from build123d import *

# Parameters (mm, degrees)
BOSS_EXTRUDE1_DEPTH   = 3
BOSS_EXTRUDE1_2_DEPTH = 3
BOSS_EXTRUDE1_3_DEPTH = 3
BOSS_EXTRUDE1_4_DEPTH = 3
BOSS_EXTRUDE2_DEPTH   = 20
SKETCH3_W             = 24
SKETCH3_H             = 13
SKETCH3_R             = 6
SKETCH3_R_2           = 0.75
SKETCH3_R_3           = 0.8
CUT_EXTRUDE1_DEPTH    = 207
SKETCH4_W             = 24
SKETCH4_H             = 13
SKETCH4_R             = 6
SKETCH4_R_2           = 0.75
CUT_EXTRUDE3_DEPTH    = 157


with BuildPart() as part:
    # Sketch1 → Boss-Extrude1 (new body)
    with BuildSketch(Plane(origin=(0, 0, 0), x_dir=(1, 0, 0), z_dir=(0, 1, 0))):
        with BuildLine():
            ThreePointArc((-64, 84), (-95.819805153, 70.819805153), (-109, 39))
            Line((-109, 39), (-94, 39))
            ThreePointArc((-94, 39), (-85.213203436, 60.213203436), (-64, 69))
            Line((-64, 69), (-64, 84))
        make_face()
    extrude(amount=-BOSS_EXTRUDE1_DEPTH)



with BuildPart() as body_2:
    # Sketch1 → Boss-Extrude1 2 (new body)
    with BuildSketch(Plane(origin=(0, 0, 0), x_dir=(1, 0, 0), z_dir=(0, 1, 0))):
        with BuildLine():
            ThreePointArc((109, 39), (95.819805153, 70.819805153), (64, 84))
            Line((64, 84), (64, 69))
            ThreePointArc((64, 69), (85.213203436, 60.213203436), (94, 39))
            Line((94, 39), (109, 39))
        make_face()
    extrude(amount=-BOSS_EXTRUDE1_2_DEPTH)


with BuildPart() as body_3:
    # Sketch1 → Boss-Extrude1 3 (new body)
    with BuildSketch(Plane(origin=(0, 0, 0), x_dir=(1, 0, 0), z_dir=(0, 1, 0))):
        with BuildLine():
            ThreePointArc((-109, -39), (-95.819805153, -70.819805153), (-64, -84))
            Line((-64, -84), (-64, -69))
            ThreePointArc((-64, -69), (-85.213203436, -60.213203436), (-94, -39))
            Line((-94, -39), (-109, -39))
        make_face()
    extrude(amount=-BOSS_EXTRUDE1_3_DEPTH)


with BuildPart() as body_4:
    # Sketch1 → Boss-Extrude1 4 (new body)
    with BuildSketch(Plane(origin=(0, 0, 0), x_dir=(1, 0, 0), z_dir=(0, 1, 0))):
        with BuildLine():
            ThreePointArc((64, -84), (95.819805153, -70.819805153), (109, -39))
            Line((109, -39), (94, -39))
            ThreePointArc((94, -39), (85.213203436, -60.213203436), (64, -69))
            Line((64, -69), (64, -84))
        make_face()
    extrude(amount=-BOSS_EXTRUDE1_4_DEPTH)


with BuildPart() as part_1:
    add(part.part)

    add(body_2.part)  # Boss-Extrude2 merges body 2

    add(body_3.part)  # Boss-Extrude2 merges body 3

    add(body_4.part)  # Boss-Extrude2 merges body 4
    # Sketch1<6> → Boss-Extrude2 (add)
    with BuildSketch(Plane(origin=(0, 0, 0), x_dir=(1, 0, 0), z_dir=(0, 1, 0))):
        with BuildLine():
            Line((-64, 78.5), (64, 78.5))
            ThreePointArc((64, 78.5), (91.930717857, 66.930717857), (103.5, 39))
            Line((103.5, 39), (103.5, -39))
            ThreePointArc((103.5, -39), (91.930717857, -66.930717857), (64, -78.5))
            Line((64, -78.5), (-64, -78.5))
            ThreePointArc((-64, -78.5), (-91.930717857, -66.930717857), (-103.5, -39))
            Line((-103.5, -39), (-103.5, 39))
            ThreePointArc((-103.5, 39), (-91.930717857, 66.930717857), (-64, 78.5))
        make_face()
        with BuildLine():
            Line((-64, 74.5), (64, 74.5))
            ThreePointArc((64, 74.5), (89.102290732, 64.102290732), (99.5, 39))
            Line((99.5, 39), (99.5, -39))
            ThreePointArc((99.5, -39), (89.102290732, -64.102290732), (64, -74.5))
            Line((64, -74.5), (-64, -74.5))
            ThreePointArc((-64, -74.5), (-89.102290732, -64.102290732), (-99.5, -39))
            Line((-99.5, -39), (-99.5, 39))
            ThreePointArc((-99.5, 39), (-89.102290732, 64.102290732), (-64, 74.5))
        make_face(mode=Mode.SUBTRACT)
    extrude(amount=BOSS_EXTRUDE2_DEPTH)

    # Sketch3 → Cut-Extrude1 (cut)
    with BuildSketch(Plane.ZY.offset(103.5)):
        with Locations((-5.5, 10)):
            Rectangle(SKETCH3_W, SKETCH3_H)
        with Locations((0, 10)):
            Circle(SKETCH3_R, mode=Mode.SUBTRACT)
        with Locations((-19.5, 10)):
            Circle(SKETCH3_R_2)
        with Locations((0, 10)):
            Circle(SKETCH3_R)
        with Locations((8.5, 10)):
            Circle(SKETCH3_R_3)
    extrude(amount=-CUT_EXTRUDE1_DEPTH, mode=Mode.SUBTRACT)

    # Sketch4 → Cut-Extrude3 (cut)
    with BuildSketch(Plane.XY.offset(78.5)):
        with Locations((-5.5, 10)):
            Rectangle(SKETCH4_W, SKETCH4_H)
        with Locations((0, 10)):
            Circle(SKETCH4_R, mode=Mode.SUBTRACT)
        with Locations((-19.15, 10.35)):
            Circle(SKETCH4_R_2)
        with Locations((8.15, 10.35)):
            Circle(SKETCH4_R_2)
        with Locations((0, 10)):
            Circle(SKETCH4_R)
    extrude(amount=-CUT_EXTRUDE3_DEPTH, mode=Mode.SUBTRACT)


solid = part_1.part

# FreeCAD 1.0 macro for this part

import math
import FreeCAD as App
import Part
import Sketcher
from FreeCAD import Vector
Q = App.Units.Quantity


def add_polygon(sketch, points):
    """Adds a closed chain of lines whose ends are joined by coincident constraints."""
    first, n = sketch.GeometryCount, len(points)
    for a, b in zip(points, points[1:] + points[:1]):
        sketch.addGeometry(Part.LineSegment(App.Vector(*a, 0), App.Vector(*b, 0)), False)
    for i in range(n):
        sketch.addConstraint(Sketcher.Constraint("Coincident", first + i, 2, first + (i + 1) % n, 1))

doc = App.newDocument("Part")
body = doc.addObject("PartDesign::Body", "Body")

# Sketch on XZ plane
sketch1 = body.newObject("Sketcher::SketchObject", "Sketch")
sketch1.AttachmentSupport = (doc.getObject("XZ_Plane"), [""])
sketch1.MapMode = "FlatFace"
sketch1.addGeometry(Part.ArcOfCircle(Part.Circle(Vector(-64, -39, 0), Vector(0, 0, 1), 45), math.radians(-180), math.radians(-90)), False)
sketch1.addGeometry(Part.LineSegment(Vector(-109, -39, 0), Vector(-94, -39, 0)), False)
sketch1.addGeometry(Part.ArcOfCircle(Part.Circle(Vector(-64, -39, 0), Vector(0, 0, 1), 30), math.radians(180), math.radians(270)), False)
sketch1.addGeometry(Part.LineSegment(Vector(-64, -69, 0), Vector(-64, -84, 0)), False)
sketch1.addConstraint(Sketcher.Constraint("Coincident", 0, 1, 1, 1))
sketch1.addConstraint(Sketcher.Constraint("Coincident", 1, 2, 2, 1))
sketch1.addConstraint(Sketcher.Constraint("Coincident", 2, 2, 3, 1))
sketch1.addConstraint(Sketcher.Constraint("Coincident", 3, 2, 0, 2))
sketch1.addConstraint(Sketcher.Constraint("Horizontal", 1))
sketch1.addConstraint(Sketcher.Constraint("Vertical", 3))
sketch1.addConstraint(Sketcher.Constraint("Coincident", 2, 3, 0, 3))
sketch1.addConstraint(Sketcher.Constraint("Horizontal", 2, 3, 0, 1))
sketch1.addConstraint(Sketcher.Constraint("Vertical", 0, 3, 2, 2))
sketch1.addConstraint(Sketcher.Constraint("Radius", 0, Q("45 mm")))
sketch1.addConstraint(Sketcher.Constraint("Radius", 2, Q("30 mm")))
sketch1.addConstraint(Sketcher.Constraint("DistanceX", 0, 3, -1, 1, Q("64 mm")))
sketch1.addConstraint(Sketcher.Constraint("DistanceY", 0, 3, -1, 1, Q("39 mm")))
pad1 = body.newObject("PartDesign::Pad", "Pad")
pad1.Profile = sketch1
pad1.Length = 3
body2 = doc.addObject("PartDesign::Body", "Body001")

# Sketch on XZ plane
sketch2 = body2.newObject("Sketcher::SketchObject", "Sketch001")
sketch2.AttachmentSupport = (doc.getObject("XZ_Plane001"), [""])
sketch2.MapMode = "FlatFace"
sketch2.addGeometry(Part.ArcOfCircle(Part.Circle(Vector(64, -39, 0), Vector(0, 0, 1), 45), math.radians(-90), math.radians(0)), False)
sketch2.addGeometry(Part.LineSegment(Vector(64, -84, 0), Vector(64, -69, 0)), False)
sketch2.addGeometry(Part.ArcOfCircle(Part.Circle(Vector(64, -39, 0), Vector(0, 0, 1), 30), math.radians(-90), math.radians(0)), False)
sketch2.addGeometry(Part.LineSegment(Vector(94, -39, 0), Vector(109, -39, 0)), False)
sketch2.addConstraint(Sketcher.Constraint("Coincident", 0, 1, 1, 1))
sketch2.addConstraint(Sketcher.Constraint("Coincident", 1, 2, 2, 1))
sketch2.addConstraint(Sketcher.Constraint("Coincident", 2, 2, 3, 1))
sketch2.addConstraint(Sketcher.Constraint("Coincident", 3, 2, 0, 2))
sketch2.addConstraint(Sketcher.Constraint("Vertical", 1))
sketch2.addConstraint(Sketcher.Constraint("Horizontal", 3))
sketch2.addConstraint(Sketcher.Constraint("Coincident", 2, 3, 0, 3))
sketch2.addConstraint(Sketcher.Constraint("Horizontal", 0, 3, 2, 2))
sketch2.addConstraint(Sketcher.Constraint("Vertical", 2, 3, 0, 1))
sketch2.addConstraint(Sketcher.Constraint("Radius", 0, Q("45 mm")))
sketch2.addConstraint(Sketcher.Constraint("Radius", 2, Q("30 mm")))
sketch2.addConstraint(Sketcher.Constraint("DistanceX", -1, 1, 0, 3, Q("64 mm")))
sketch2.addConstraint(Sketcher.Constraint("DistanceY", 0, 3, -1, 1, Q("39 mm")))
pad2 = body2.newObject("PartDesign::Pad", "Pad001")
pad2.Profile = sketch2
pad2.Length = 3
body3 = doc.addObject("PartDesign::Body", "Body002")

# Sketch on XZ plane
sketch3 = body3.newObject("Sketcher::SketchObject", "Sketch002")
sketch3.AttachmentSupport = (doc.getObject("XZ_Plane002"), [""])
sketch3.MapMode = "FlatFace"
sketch3.addGeometry(Part.ArcOfCircle(Part.Circle(Vector(-64, 39, 0), Vector(0, 0, 1), 45), math.radians(90), math.radians(180)), False)
sketch3.addGeometry(Part.LineSegment(Vector(-64, 84, 0), Vector(-64, 69, 0)), False)
sketch3.addGeometry(Part.ArcOfCircle(Part.Circle(Vector(-64, 39, 0), Vector(0, 0, 1), 30), math.radians(90), math.radians(180)), False)
sketch3.addGeometry(Part.LineSegment(Vector(-94, 39, 0), Vector(-109, 39, 0)), False)
sketch3.addConstraint(Sketcher.Constraint("Coincident", 0, 1, 1, 1))
sketch3.addConstraint(Sketcher.Constraint("Coincident", 1, 2, 2, 1))
sketch3.addConstraint(Sketcher.Constraint("Coincident", 2, 2, 3, 1))
sketch3.addConstraint(Sketcher.Constraint("Coincident", 3, 2, 0, 2))
sketch3.addConstraint(Sketcher.Constraint("Vertical", 1))
sketch3.addConstraint(Sketcher.Constraint("Horizontal", 3))
sketch3.addConstraint(Sketcher.Constraint("Coincident", 2, 3, 0, 3))
sketch3.addConstraint(Sketcher.Constraint("Horizontal", 0, 3, 2, 2))
sketch3.addConstraint(Sketcher.Constraint("Vertical", 2, 3, 0, 1))
sketch3.addConstraint(Sketcher.Constraint("Radius", 0, Q("45 mm")))
sketch3.addConstraint(Sketcher.Constraint("Radius", 2, Q("30 mm")))
sketch3.addConstraint(Sketcher.Constraint("DistanceX", 0, 3, -1, 1, Q("64 mm")))
sketch3.addConstraint(Sketcher.Constraint("DistanceY", -1, 1, 0, 3, Q("39 mm")))
pad3 = body3.newObject("PartDesign::Pad", "Pad002")
pad3.Profile = sketch3
pad3.Length = 3
body4 = doc.addObject("PartDesign::Body", "Body003")

# Sketch on XZ plane
sketch4 = body4.newObject("Sketcher::SketchObject", "Sketch003")
sketch4.AttachmentSupport = (doc.getObject("XZ_Plane003"), [""])
sketch4.MapMode = "FlatFace"
sketch4.addGeometry(Part.ArcOfCircle(Part.Circle(Vector(64, 39, 0), Vector(0, 0, 1), 45), math.radians(0), math.radians(90)), False)
sketch4.addGeometry(Part.LineSegment(Vector(109, 39, 0), Vector(94, 39, 0)), False)
sketch4.addGeometry(Part.ArcOfCircle(Part.Circle(Vector(64, 39, 0), Vector(0, 0, 1), 30), math.radians(0), math.radians(90)), False)
sketch4.addGeometry(Part.LineSegment(Vector(64, 69, 0), Vector(64, 84, 0)), False)
sketch4.addConstraint(Sketcher.Constraint("Coincident", 0, 1, 1, 1))
sketch4.addConstraint(Sketcher.Constraint("Coincident", 1, 2, 2, 1))
sketch4.addConstraint(Sketcher.Constraint("Coincident", 2, 2, 3, 1))
sketch4.addConstraint(Sketcher.Constraint("Coincident", 3, 2, 0, 2))
sketch4.addConstraint(Sketcher.Constraint("Horizontal", 1))
sketch4.addConstraint(Sketcher.Constraint("Vertical", 3))
sketch4.addConstraint(Sketcher.Constraint("Coincident", 2, 3, 0, 3))
sketch4.addConstraint(Sketcher.Constraint("Horizontal", 2, 3, 0, 1))
sketch4.addConstraint(Sketcher.Constraint("Vertical", 0, 3, 2, 2))
sketch4.addConstraint(Sketcher.Constraint("Radius", 0, Q("45 mm")))
sketch4.addConstraint(Sketcher.Constraint("Radius", 2, Q("30 mm")))
sketch4.addConstraint(Sketcher.Constraint("DistanceX", -1, 1, 0, 3, Q("64 mm")))
sketch4.addConstraint(Sketcher.Constraint("DistanceY", -1, 1, 0, 3, Q("39 mm")))
pad4 = body4.newObject("PartDesign::Pad", "Pad003")
pad4.Profile = sketch4
pad4.Length = 3
body.AllowCompound = True
doc.recompute()

boolean = body.newObject("PartDesign::Boolean", "Boolean")
boolean.Type = "Fuse"
boolean.addObjects([body2])
doc.recompute()

boolean2 = body.newObject("PartDesign::Boolean", "Boolean001")
boolean2.Type = "Fuse"
boolean2.addObjects([body3])
doc.recompute()

boolean3 = body.newObject("PartDesign::Boolean", "Boolean002")
boolean3.Type = "Fuse"
boolean3.addObjects([body4])

# Sketch on XZ plane
sketch5 = body.newObject("Sketcher::SketchObject", "Sketch004")
sketch5.AttachmentSupport = (doc.getObject("XZ_Plane"), [""])
sketch5.MapMode = "FlatFace"
sketch5.addGeometry(Part.LineSegment(Vector(64, -78.5, 0), Vector(-64, -78.5, 0)), False)
sketch5.addGeometry(Part.ArcOfCircle(Part.Circle(Vector(-64, -39, 0), Vector(0, 0, 1), 39.5), math.radians(180), math.radians(270)), False)
sketch5.addGeometry(Part.LineSegment(Vector(-103.5, -39, 0), Vector(-103.5, 39, 0)), False)
sketch5.addGeometry(Part.ArcOfCircle(Part.Circle(Vector(-64, 39, 0), Vector(0, 0, 1), 39.5), math.radians(90), math.radians(180)), False)
sketch5.addGeometry(Part.LineSegment(Vector(-64, 78.5, 0), Vector(64, 78.5, 0)), False)
sketch5.addGeometry(Part.ArcOfCircle(Part.Circle(Vector(64, 39, 0), Vector(0, 0, 1), 39.5), math.radians(0), math.radians(90)), False)
sketch5.addGeometry(Part.LineSegment(Vector(103.5, 39, 0), Vector(103.5, -39, 0)), False)
sketch5.addGeometry(Part.ArcOfCircle(Part.Circle(Vector(64, -39, 0), Vector(0, 0, 1), 39.5), math.radians(-90), math.radians(0)), False)
sketch5.addGeometry(Part.LineSegment(Vector(-64, -74.5, 0), Vector(64, -74.5, 0)), False)
sketch5.addGeometry(Part.ArcOfCircle(Part.Circle(Vector(64, -39, 0), Vector(0, 0, 1), 35.5), math.radians(-90), math.radians(0)), False)
sketch5.addGeometry(Part.LineSegment(Vector(99.5, -39, 0), Vector(99.5, 39, 0)), False)
sketch5.addGeometry(Part.ArcOfCircle(Part.Circle(Vector(64, 39, 0), Vector(0, 0, 1), 35.5), math.radians(0), math.radians(90)), False)
sketch5.addGeometry(Part.LineSegment(Vector(64, 74.5, 0), Vector(-64, 74.5, 0)), False)
sketch5.addGeometry(Part.ArcOfCircle(Part.Circle(Vector(-64, 39, 0), Vector(0, 0, 1), 35.5), math.radians(90), math.radians(180)), False)
sketch5.addGeometry(Part.LineSegment(Vector(-99.5, 39, 0), Vector(-99.5, -39, 0)), False)
sketch5.addGeometry(Part.ArcOfCircle(Part.Circle(Vector(-64, -39, 0), Vector(0, 0, 1), 35.5), math.radians(180), math.radians(270)), False)
sketch5.addConstraint(Sketcher.Constraint("Tangent", 0, 2, 1, 2))
sketch5.addConstraint(Sketcher.Constraint("Tangent", 1, 1, 2, 1))
sketch5.addConstraint(Sketcher.Constraint("Tangent", 2, 2, 3, 2))
sketch5.addConstraint(Sketcher.Constraint("Tangent", 3, 1, 4, 1))
sketch5.addConstraint(Sketcher.Constraint("Tangent", 4, 2, 5, 2))
sketch5.addConstraint(Sketcher.Constraint("Tangent", 5, 1, 6, 1))
sketch5.addConstraint(Sketcher.Constraint("Tangent", 6, 2, 7, 2))
sketch5.addConstraint(Sketcher.Constraint("Tangent", 7, 1, 0, 1))
sketch5.addConstraint(Sketcher.Constraint("Tangent", 8, 2, 9, 1))
sketch5.addConstraint(Sketcher.Constraint("Tangent", 9, 2, 10, 1))
sketch5.addConstraint(Sketcher.Constraint("Tangent", 10, 2, 11, 1))
sketch5.addConstraint(Sketcher.Constraint("Tangent", 11, 2, 12, 1))
sketch5.addConstraint(Sketcher.Constraint("Tangent", 12, 2, 13, 1))
sketch5.addConstraint(Sketcher.Constraint("Tangent", 13, 2, 14, 1))
sketch5.addConstraint(Sketcher.Constraint("Tangent", 14, 2, 15, 1))
sketch5.addConstraint(Sketcher.Constraint("Tangent", 15, 2, 8, 1))
sketch5.addConstraint(Sketcher.Constraint("Horizontal", 0))
sketch5.addConstraint(Sketcher.Constraint("Vertical", 2))
sketch5.addConstraint(Sketcher.Constraint("Horizontal", 4))
sketch5.addConstraint(Sketcher.Constraint("Vertical", 6))
sketch5.addConstraint(Sketcher.Constraint("Horizontal", 8))
sketch5.addConstraint(Sketcher.Constraint("Vertical", 10))
sketch5.addConstraint(Sketcher.Constraint("Horizontal", 12))
sketch5.addConstraint(Sketcher.Constraint("Vertical", 14))
sketch5.addConstraint(Sketcher.Constraint("Coincident", 9, 3, 7, 3))
sketch5.addConstraint(Sketcher.Constraint("Coincident", 11, 3, 5, 3))
sketch5.addConstraint(Sketcher.Constraint("Coincident", 13, 3, 3, 3))
sketch5.addConstraint(Sketcher.Constraint("Equal", 1, 3))
sketch5.addConstraint(Sketcher.Constraint("Equal", 3, 5))
sketch5.addConstraint(Sketcher.Constraint("Equal", 5, 7))
sketch5.addConstraint(Sketcher.Constraint("Equal", 13, 15))
sketch5.addConstraint(Sketcher.Constraint("Symmetric", 1, 3, 5, 3, -1, 1))
sketch5.addConstraint(Sketcher.Constraint("Radius", 1, Q("39.5 mm")))
sketch5.addConstraint(Sketcher.Constraint("Radius", 9, Q("35.5 mm")))
sketch5.addConstraint(Sketcher.Constraint("DistanceX", 0, 2, 0, 1, Q("128 mm")))
sketch5.addConstraint(Sketcher.Constraint("DistanceY", 2, 1, 2, 2, Q("78 mm")))
pad5 = body.newObject("PartDesign::Pad", "Pad004")
pad5.Profile = sketch5
pad5.Length = 20
pad5.Reversed = True

# Sketch on YZ plane
sketch6 = body.newObject("Sketcher::SketchObject", "Sketch005")
sketch6.AttachmentSupport = (doc.getObject("YZ_Plane"), [""])
sketch6.MapMode = "FlatFace"
sketch6.AttachmentOffset = App.Placement(Vector(0, 0, -103.5), App.Rotation())
add_polygon(sketch6, [(16.5, -17.5), (3.5, -17.5), (3.5, 6.5), (16.5, 6.5)])  # lines 0-3
sketch6.addGeometry(Part.Circle(Vector(10, -19.5, 0), Vector(0, 0, 1), 0.75), False)  # 4
sketch6.addGeometry(Part.Circle(Vector(10, 8.5, 0), Vector(0, 0, 1), 0.8), False)  # 5
sketch6.addConstraint(Sketcher.Constraint("Horizontal", 0))
sketch6.addConstraint(Sketcher.Constraint("Vertical", 1))
sketch6.addConstraint(Sketcher.Constraint("Horizontal", 2))
sketch6.addConstraint(Sketcher.Constraint("Vertical", 3))
sketch6.addConstraint(Sketcher.Constraint("Vertical", 4, 3, 5, 3))
sketch6.addConstraint(Sketcher.Constraint("Diameter", 4, Q("1.5 mm")))
sketch6.addConstraint(Sketcher.Constraint("Diameter", 5, Q("1.6 mm")))
sketch6.addConstraint(Sketcher.Constraint("DistanceX", 0, 2, 0, 1, Q("13 mm")))
sketch6.addConstraint(Sketcher.Constraint("DistanceY", 1, 1, 1, 2, Q("24 mm")))
sketch6.addConstraint(Sketcher.Constraint("DistanceX", -1, 1, 4, 3, Q("10 mm")))
sketch6.addConstraint(Sketcher.Constraint("DistanceY", 4, 3, 5, 3, Q("28 mm")))
sketch6.addConstraint(Sketcher.Constraint("DistanceY", 4, 3, 0, 2, Q("2 mm")))
sketch6.addConstraint(Sketcher.Constraint("DistanceY", 4, 3, -1, 1, Q("19.5 mm")))
sketch6.addConstraint(Sketcher.Constraint("DistanceX", -1, 1, 0, 2, Q("3.5 mm")))
pocket1 = body.newObject("PartDesign::Pocket", "Pocket")
pocket1.Profile = sketch6
pocket1.Length = 207
pocket1.Reversed = True

# Sketch on XY plane
sketch7 = body.newObject("Sketcher::SketchObject", "Sketch006")
sketch7.AttachmentSupport = (doc.getObject("XY_Plane"), [""])
sketch7.MapMode = "FlatFace"
sketch7.AttachmentOffset = App.Placement(Vector(0, 0, 78.5), App.Rotation())
add_polygon(sketch7, [(-17.5, 16.5), (-17.5, 3.5), (6.5, 3.5), (6.5, 16.5)])  # lines 0-3
sketch7.addGeometry(Part.Circle(Vector(-19.15, 10.35, 0), Vector(0, 0, 1), 0.75), False)  # 4
sketch7.addGeometry(Part.Circle(Vector(8.15, 10.35, 0), Vector(0, 0, 1), 0.75), False)  # 5
sketch7.addConstraint(Sketcher.Constraint("Vertical", 0))
sketch7.addConstraint(Sketcher.Constraint("Horizontal", 1))
sketch7.addConstraint(Sketcher.Constraint("Vertical", 2))
sketch7.addConstraint(Sketcher.Constraint("Horizontal", 3))
sketch7.addConstraint(Sketcher.Constraint("Equal", 4, 5))
sketch7.addConstraint(Sketcher.Constraint("Horizontal", 4, 3, 5, 3))
sketch7.addConstraint(Sketcher.Constraint("Diameter", 4, Q("1.5 mm")))
sketch7.addConstraint(Sketcher.Constraint("DistanceX", 1, 1, 1, 2, Q("24 mm")))
sketch7.addConstraint(Sketcher.Constraint("DistanceY", 0, 2, 0, 1, Q("13 mm")))
sketch7.addConstraint(Sketcher.Constraint("DistanceX", 0, 2, -1, 1, Q("17.5 mm")))
sketch7.addConstraint(Sketcher.Constraint("DistanceY", -1, 1, 0, 2, Q("3.5 mm")))
sketch7.addConstraint(Sketcher.Constraint("DistanceX", 4, 3, 5, 3, Q("27.3 mm")))
sketch7.addConstraint(Sketcher.Constraint("DistanceX", 4, 3, -1, 1, Q("19.15 mm")))
sketch7.addConstraint(Sketcher.Constraint("DistanceY", -1, 1, 4, 3, Q("10.35 mm")))
pocket2 = body.newObject("PartDesign::Pocket", "Pocket001")
pocket2.Profile = sketch7
pocket2.Length = 157

doc.recompute()
